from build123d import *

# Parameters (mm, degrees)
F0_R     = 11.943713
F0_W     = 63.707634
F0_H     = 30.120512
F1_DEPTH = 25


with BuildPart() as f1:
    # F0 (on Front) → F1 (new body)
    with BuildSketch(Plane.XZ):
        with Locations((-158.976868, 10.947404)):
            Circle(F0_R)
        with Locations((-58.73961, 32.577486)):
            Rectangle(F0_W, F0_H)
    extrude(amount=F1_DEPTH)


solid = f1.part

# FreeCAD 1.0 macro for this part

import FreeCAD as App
import Part
import Sketcher

V = App.Vector
Q = App.Units.Quantity

doc = App.newDocument("Part")
body = doc.addObject("PartDesign::Body", "Body")
body.AllowCompound = True

# Sketch on XZ plane
sketch1 = doc.addObject("Sketcher::SketchObject", "Sketch")
body.addObject(sketch1)
sketch1.AttachmentSupport = (doc.XZ_Plane, [""])
sketch1.MapMode = "FlatFace"
sketch1.addGeometry([
    Part.Circle(V(-159, 11, 0), V(0, 0, 1), 12),  # 0
    Part.LineSegment(V(-91, 48, 0), V(-91, 18, 0)),  # 1
    Part.LineSegment(V(-91, 18, 0), V(-27, 18, 0)),  # 2
    Part.LineSegment(V(-27, 18, 0), V(-27, 48, 0)),  # 3
    Part.LineSegment(V(-27, 48, 0), V(-91, 48, 0)),  # 4
], False)
sketch1.addConstraint([
    Sketcher.Constraint("Coincident", 1, 2, 2, 1),
    Sketcher.Constraint("Coincident", 2, 2, 3, 1),
    Sketcher.Constraint("Coincident", 3, 2, 4, 1),
    Sketcher.Constraint("Coincident", 4, 2, 1, 1),
    Sketcher.Constraint("Vertical", 1),
    Sketcher.Constraint("Horizontal", 2),
    Sketcher.Constraint("Vertical", 3),
    Sketcher.Constraint("Horizontal", 4),
    Sketcher.Constraint("Diameter", 0, Q("23.887426 mm")),
    Sketcher.Constraint("DistanceX", 2, 1, 2, 2, Q("63.707634 mm")),
    Sketcher.Constraint("DistanceY", 1, 2, 1, 1, Q("30.120512 mm")),
    Sketcher.Constraint("DistanceX", 0, 3, -1, 1, Q("158.976868 mm")),
    Sketcher.Constraint("DistanceY", -1, 1, 1, 2, Q("17.51723 mm")),
    Sketcher.Constraint("DistanceX", 0, 3, 1, 2, Q("68.383441 mm")),
    Sketcher.Constraint("DistanceY", 0, 3, 3, 2, Q("36.690338 mm")),
])
pad1 = doc.addObject("PartDesign::Pad", "Pad")
body.addObject(pad1)
pad1.Profile = sketch1
pad1.Length = 25

doc.recompute()
